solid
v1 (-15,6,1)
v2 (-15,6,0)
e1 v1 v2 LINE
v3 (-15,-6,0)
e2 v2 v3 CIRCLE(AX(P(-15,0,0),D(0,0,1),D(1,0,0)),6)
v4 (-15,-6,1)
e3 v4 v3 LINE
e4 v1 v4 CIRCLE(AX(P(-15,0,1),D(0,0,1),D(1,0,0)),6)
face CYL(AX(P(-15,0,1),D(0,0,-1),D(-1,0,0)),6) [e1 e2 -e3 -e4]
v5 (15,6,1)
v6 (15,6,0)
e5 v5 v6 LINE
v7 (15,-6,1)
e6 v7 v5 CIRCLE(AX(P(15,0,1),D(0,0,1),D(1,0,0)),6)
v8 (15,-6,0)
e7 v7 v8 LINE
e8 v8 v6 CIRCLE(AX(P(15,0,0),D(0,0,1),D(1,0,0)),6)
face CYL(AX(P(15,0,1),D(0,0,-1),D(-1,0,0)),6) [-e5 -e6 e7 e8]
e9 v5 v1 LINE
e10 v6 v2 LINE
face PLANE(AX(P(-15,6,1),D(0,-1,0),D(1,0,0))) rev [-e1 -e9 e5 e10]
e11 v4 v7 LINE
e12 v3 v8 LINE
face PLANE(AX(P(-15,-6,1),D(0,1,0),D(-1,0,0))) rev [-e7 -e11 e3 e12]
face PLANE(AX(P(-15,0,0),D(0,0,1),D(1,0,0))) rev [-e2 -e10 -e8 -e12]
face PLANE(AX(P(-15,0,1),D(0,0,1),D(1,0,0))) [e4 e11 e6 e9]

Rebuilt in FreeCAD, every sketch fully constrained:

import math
import FreeCAD as App
import Part
import Sketcher

doc = App.newDocument("Part")
body = doc.addObject("PartDesign::Body", "Body")

# Sketch on XY plane
sketch1 = body.newObject("Sketcher::SketchObject", "Sketch")
sketch1.AttachmentSupport = (doc.getObject("XY_Plane"), [""])
sketch1.MapMode = "FlatFace"
sketch1.addGeometry(Part.LineSegment(App.Vector(15, 6, 0), App.Vector(-15, 6, 0)), False)
sketch1.addGeometry(Part.ArcOfCircle(Part.Circle(App.Vector(-15, 0, 0), App.Vector(0, 0, 1), 6), math.radians(90), math.radians(270)), False)
sketch1.addGeometry(Part.LineSegment(App.Vector(-15, -6, 0), App.Vector(15, -6, 0)), False)
sketch1.addGeometry(Part.ArcOfCircle(Part.Circle(App.Vector(15, 0, 0), App.Vector(0, 0, 1), 6), math.radians(-90), math.radians(90)), False)
sketch1.addConstraint(Sketcher.Constraint("Tangent", 0, 2, 1, 1))
sketch1.addConstraint(Sketcher.Constraint("Tangent", 1, 2, 2, 1))
sketch1.addConstraint(Sketcher.Constraint("Tangent", 2, 2, 3, 1))
sketch1.addConstraint(Sketcher.Constraint("Tangent", 3, 2, 0, 1))
sketch1.addConstraint(Sketcher.Constraint("Horizontal", 0))
sketch1.addConstraint(Sketcher.Constraint("Horizontal", 2))
sketch1.addConstraint(Sketcher.Constraint("Symmetric", 1, 3, 3, 3, -1, 1))
sketch1.addConstraint(Sketcher.Constraint("Radius", 1, 6.0))
sketch1.addConstraint(Sketcher.Constraint("DistanceX", 0, 2, 0, 1, 30.0))
pad1 = body.newObject("PartDesign::Pad", "Pad")
pad1.Profile = sketch1
pad1.Length = 1

doc.recompute()
